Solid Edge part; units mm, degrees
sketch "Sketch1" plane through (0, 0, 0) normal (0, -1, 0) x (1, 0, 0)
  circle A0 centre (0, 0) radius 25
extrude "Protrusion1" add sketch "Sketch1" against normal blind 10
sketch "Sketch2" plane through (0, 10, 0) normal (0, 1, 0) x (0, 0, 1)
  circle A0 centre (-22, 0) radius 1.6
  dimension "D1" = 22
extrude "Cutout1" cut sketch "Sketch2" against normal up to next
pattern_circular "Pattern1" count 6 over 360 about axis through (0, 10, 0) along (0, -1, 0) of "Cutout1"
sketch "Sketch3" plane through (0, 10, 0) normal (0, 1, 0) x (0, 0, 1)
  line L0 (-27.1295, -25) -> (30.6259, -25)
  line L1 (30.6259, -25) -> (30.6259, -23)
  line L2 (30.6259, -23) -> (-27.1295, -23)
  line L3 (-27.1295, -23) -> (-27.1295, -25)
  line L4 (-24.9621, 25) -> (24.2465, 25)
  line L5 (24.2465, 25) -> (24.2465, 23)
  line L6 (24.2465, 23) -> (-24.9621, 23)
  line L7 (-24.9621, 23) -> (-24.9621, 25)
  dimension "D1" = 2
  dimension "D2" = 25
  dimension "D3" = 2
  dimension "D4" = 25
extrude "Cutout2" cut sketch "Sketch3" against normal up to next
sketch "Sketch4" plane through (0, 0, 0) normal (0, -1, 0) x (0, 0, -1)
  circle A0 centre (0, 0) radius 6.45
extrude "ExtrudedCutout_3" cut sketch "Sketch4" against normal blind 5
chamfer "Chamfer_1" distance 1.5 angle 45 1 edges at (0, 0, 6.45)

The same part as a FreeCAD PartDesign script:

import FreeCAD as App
import Part
import Sketcher
Q = App.Units.Quantity


def edges_at(feature, points):
    """Names of the edges that pass closest to the given points."""
    edges = feature.Shape.Edges
    near = lambda p: min(range(len(edges)), key=lambda i: edges[i].distToShape(Part.Vertex(*p))[0])
    return sorted({f"Edge{near(p) + 1}" for p in points})

doc = App.newDocument("Part")
body = doc.addObject("PartDesign::Body", "Body")

# Sketch on XZ plane
sketch1 = body.newObject("Sketcher::SketchObject", "Sketch")
sketch1.AttachmentSupport = (doc.getObject("XZ_Plane"), [""])
sketch1.MapMode = "FlatFace"
sketch1.addGeometry(Part.Circle(App.Vector(0, 0, 0), App.Vector(0, 0, 1), 25), False)
sketch1.addConstraint(Sketcher.Constraint("Coincident", 0, 3, -1, 1))
sketch1.addConstraint(Sketcher.Constraint("Diameter", 0, Q("50 mm")))
pad1 = body.newObject("PartDesign::Pad", "Pad")
pad1.Profile = sketch1
pad1.Length = 10
pad1.Reversed = True

# Sketch on XZ plane
sketch2 = body.newObject("Sketcher::SketchObject", "Sketch001")
sketch2.AttachmentSupport = (doc.getObject("XZ_Plane"), [""])
sketch2.MapMode = "FlatFace"
sketch2.AttachmentOffset = App.Placement(App.Vector(0, 0, -10), App.Rotation())
sketch2.addGeometry(Part.Circle(App.Vector(0, -22, 0), App.Vector(0, 0, 1), 1.6), False)
sketch2.addConstraint(Sketcher.Constraint("PointOnObject", 0, 3, -2))
sketch2.addConstraint(Sketcher.Constraint("Diameter", 0, Q("3.2 mm")))
sketch2.addConstraint(Sketcher.Constraint("DistanceY", 0, 3, -1, 1, Q("22 mm")))
pocket1 = body.newObject("PartDesign::Pocket", "Pocket")
pocket1.Profile = sketch2
pocket1.Type = "UpToFirst"
pocket1.Reversed = True
doc.recompute()

polarpattern = body.newObject("PartDesign::PolarPattern", "PolarPattern")
polarpattern.Originals = [pocket1]
polarpattern.Axis = (doc.getObject("Y_Axis"), [""])
polarpattern.Angle = 360
polarpattern.Occurrences = 6
body.Tip = polarpattern

# Sketch on XZ plane
sketch3 = body.newObject("Sketcher::SketchObject", "Sketch002")
sketch3.AttachmentSupport = (doc.getObject("XZ_Plane"), [""])
sketch3.MapMode = "FlatFace"
sketch3.AttachmentOffset = App.Placement(App.Vector(0, 0, -10), App.Rotation())
sketch3.addGeometry(Part.LineSegment(App.Vector(-23, -27.1295, 0), App.Vector(-25, -27.1295, 0)), False)
sketch3.addGeometry(Part.LineSegment(App.Vector(-25, -27.1295, 0), App.Vector(-25, 30.6259, 0)), False)
sketch3.addGeometry(Part.LineSegment(App.Vector(-25, 30.6259, 0), App.Vector(-23, 30.6259, 0)), False)
sketch3.addGeometry(Part.LineSegment(App.Vector(-23, 30.6259, 0), App.Vector(-23, -27.1295, 0)), False)
sketch3.addGeometry(Part.LineSegment(App.Vector(25, 24.2465, 0), App.Vector(25, -24.9621, 0)), False)
sketch3.addGeometry(Part.LineSegment(App.Vector(25, -24.9621, 0), App.Vector(23, -24.9621, 0)), False)
sketch3.addGeometry(Part.LineSegment(App.Vector(23, -24.9621, 0), App.Vector(23, 24.2465, 0)), False)
sketch3.addGeometry(Part.LineSegment(App.Vector(23, 24.2465, 0), App.Vector(25, 24.2465, 0)), False)
sketch3.addConstraint(Sketcher.Constraint("Coincident", 0, 2, 1, 1))
sketch3.addConstraint(Sketcher.Constraint("Coincident", 1, 2, 2, 1))
sketch3.addConstraint(Sketcher.Constraint("Coincident", 2, 2, 3, 1))
sketch3.addConstraint(Sketcher.Constraint("Coincident", 3, 2, 0, 1))
sketch3.addConstraint(Sketcher.Constraint("Coincident", 4, 2, 5, 1))
sketch3.addConstraint(Sketcher.Constraint("Coincident", 5, 2, 6, 1))
sketch3.addConstraint(Sketcher.Constraint("Coincident", 6, 2, 7, 1))
sketch3.addConstraint(Sketcher.Constraint("Coincident", 7, 2, 4, 1))
sketch3.addConstraint(Sketcher.Constraint("Horizontal", 0))
sketch3.addConstraint(Sketcher.Constraint("Vertical", 1))
sketch3.addConstraint(Sketcher.Constraint("Horizontal", 2))
sketch3.addConstraint(Sketcher.Constraint("Vertical", 3))
sketch3.addConstraint(Sketcher.Constraint("Vertical", 4))
sketch3.addConstraint(Sketcher.Constraint("Horizontal", 5))
sketch3.addConstraint(Sketcher.Constraint("Vertical", 6))
sketch3.addConstraint(Sketcher.Constraint("Horizontal", 7))
sketch3.addConstraint(Sketcher.Constraint("Equal", 2, 5))
sketch3.addConstraint(Sketcher.Constraint("DistanceX", 0, 2, 0, 1, Q("2 mm")))
sketch3.addConstraint(Sketcher.Constraint("DistanceY", -1, 1, 1, 2, Q("30.626 mm")))
sketch3.addConstraint(Sketcher.Constraint("DistanceX", 0, 2, -1, 1, Q("25 mm")))
sketch3.addConstraint(Sketcher.Constraint("DistanceX", -1, 1, 4, 2, Q("25 mm")))
sketch3.addConstraint(Sketcher.Constraint("DistanceY", 1, 1, 1, 2, Q("57.7554 mm")))
sketch3.addConstraint(Sketcher.Constraint("DistanceY", 4, 2, 4, 1, Q("49.2086 mm")))
sketch3.addConstraint(Sketcher.Constraint("DistanceY", 4, 2, -1, 1, Q("24.962 mm")))
pocket2 = body.newObject("PartDesign::Pocket", "Pocket001")
pocket2.Profile = sketch3
pocket2.Type = "UpToFirst"
pocket2.Reversed = True

# Sketch on XZ plane
sketch4 = body.newObject("Sketcher::SketchObject", "Sketch003")
sketch4.AttachmentSupport = (doc.getObject("XZ_Plane"), [""])
sketch4.MapMode = "FlatFace"
sketch4.addGeometry(Part.Circle(App.Vector(0, 0, 0), App.Vector(0, 0, 1), 6.45), False)
sketch4.addConstraint(Sketcher.Constraint("Coincident", 0, 3, -1, 1))
sketch4.addConstraint(Sketcher.Constraint("Diameter", 0, Q("12.9 mm")))
pocket3 = body.newObject("PartDesign::Pocket", "Pocket002")
pocket3.Profile = sketch4
pocket3.Length = 5
doc.recompute()

chamfer = body.newObject("PartDesign::Chamfer", "Chamfer")
chamfer.Base = (pocket3, edges_at(pocket3, [(0, 0, 6.45)]))
chamfer.Size = 1.5

doc.recompute()
